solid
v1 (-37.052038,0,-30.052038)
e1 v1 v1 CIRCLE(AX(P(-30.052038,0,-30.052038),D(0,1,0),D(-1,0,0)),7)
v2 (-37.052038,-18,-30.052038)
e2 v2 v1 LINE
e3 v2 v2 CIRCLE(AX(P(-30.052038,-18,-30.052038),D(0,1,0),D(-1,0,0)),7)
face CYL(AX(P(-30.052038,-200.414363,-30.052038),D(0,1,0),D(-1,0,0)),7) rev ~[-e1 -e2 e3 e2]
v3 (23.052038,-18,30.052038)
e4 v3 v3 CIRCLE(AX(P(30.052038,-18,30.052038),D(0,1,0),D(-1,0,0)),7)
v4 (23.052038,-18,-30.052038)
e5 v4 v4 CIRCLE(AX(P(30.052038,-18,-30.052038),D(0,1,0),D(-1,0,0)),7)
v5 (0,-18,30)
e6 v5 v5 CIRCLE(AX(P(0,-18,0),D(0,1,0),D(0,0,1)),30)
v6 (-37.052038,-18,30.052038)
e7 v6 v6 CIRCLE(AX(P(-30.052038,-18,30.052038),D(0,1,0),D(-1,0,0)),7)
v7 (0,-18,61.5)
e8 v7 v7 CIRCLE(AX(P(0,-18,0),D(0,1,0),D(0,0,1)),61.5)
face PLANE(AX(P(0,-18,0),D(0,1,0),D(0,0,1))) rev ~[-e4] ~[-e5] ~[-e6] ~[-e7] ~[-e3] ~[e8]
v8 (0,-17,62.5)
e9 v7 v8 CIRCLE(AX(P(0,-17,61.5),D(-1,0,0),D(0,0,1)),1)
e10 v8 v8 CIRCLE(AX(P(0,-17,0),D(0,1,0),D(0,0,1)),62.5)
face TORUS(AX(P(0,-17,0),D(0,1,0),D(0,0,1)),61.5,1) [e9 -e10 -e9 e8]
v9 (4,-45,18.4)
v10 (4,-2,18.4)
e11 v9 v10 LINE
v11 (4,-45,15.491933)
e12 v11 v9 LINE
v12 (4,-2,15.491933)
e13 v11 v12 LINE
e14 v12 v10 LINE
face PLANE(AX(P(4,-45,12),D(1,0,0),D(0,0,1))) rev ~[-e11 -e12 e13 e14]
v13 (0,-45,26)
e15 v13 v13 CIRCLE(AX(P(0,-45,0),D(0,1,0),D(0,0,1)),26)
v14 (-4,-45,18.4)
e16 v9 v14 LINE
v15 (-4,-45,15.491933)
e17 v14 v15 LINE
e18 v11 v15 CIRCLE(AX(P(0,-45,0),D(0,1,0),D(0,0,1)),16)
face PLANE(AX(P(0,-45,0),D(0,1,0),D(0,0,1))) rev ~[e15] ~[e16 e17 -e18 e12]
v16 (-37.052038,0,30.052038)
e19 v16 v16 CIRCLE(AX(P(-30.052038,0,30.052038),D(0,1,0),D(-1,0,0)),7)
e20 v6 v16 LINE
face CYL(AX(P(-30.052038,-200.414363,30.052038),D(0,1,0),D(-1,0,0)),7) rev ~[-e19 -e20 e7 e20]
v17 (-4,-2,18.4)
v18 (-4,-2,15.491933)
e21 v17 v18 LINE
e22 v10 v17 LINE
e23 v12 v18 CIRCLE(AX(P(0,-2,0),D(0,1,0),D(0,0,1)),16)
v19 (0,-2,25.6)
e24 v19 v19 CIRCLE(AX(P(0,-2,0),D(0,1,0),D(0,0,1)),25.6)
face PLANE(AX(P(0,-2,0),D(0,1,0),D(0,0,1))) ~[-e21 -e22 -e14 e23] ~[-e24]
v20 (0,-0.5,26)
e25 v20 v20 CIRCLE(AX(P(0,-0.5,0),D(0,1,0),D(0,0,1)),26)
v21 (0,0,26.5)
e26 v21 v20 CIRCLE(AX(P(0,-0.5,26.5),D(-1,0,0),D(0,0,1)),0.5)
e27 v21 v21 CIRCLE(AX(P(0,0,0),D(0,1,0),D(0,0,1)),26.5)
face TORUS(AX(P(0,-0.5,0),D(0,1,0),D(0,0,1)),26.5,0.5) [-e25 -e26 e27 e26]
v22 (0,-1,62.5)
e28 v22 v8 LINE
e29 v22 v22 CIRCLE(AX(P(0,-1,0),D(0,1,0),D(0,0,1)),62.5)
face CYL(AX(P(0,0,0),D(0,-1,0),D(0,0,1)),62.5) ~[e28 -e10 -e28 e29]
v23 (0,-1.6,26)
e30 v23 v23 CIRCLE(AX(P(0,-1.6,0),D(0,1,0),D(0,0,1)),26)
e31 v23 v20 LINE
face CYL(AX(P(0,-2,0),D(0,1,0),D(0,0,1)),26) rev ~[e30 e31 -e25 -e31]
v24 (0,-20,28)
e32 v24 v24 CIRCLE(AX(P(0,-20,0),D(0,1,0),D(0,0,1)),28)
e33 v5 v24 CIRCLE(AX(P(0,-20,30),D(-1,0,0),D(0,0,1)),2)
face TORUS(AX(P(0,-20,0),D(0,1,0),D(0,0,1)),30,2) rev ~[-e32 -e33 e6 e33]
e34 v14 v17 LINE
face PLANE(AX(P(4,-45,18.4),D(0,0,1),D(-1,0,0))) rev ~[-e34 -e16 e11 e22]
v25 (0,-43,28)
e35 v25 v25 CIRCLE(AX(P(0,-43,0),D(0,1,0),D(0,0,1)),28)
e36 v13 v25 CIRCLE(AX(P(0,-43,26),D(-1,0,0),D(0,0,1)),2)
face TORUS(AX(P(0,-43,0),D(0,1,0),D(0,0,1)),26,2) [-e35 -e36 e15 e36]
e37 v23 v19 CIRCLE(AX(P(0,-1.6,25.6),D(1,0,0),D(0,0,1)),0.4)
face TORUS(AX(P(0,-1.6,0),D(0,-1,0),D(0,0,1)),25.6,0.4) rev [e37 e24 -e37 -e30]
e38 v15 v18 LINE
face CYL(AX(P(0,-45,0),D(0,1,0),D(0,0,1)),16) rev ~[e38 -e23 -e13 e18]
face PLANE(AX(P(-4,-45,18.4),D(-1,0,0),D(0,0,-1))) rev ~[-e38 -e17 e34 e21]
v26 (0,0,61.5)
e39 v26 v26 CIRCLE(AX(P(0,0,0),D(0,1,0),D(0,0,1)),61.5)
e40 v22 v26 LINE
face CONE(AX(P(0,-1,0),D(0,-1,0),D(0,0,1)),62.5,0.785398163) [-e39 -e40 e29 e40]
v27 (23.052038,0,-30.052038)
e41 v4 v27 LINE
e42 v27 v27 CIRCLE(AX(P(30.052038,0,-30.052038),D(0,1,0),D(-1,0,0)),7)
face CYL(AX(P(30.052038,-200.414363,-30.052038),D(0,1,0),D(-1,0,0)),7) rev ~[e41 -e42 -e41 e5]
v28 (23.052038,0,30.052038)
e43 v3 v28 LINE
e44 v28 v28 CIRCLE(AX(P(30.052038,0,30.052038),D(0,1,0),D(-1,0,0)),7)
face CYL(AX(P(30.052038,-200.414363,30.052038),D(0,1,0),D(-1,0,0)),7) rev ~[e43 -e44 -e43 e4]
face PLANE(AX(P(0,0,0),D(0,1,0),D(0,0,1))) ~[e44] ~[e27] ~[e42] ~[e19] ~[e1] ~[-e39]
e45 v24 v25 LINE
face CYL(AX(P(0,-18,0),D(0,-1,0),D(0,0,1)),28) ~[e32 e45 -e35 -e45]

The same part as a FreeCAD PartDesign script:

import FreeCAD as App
import Part
import Sketcher


def edges_at(feature, points):
    """Names of the edges that pass closest to the given points."""
    edges = feature.Shape.Edges
    near = lambda p: min(range(len(edges)), key=lambda i: edges[i].distToShape(Part.Vertex(*p))[0])
    return sorted({f"Edge{near(p) + 1}" for p in points})

doc = App.newDocument("Part")
body = doc.addObject("PartDesign::Body", "Body")

# Sketch on YZ plane
sketch1 = doc.addObject("Sketcher::SketchObject", "Sketch")
body.addObject(sketch1)
sketch1.AttachmentSupport = (doc.YZ_Plane, [""])
sketch1.MapMode = "FlatFace"
sketch1.addGeometry([
    Part.LineSegment(App.Vector(-2, 26, 0), App.Vector(0, 26, 0)),  # 0
    Part.LineSegment(App.Vector(0, 26, 0), App.Vector(0, 62.5, 0)),  # 1
    Part.LineSegment(App.Vector(0, 62.5, 0), App.Vector(-18, 62.5, 0)),  # 2
    Part.LineSegment(App.Vector(-18, 62.5, 0), App.Vector(-18, 28, 0)),  # 3
    Part.LineSegment(App.Vector(-18, 28, 0), App.Vector(-45, 28, 0)),  # 4
    Part.LineSegment(App.Vector(-45, 28, 0), App.Vector(-45, 16, 0)),  # 5
    Part.LineSegment(App.Vector(-45, 16, 0), App.Vector(-2, 16, 0)),  # 6
    Part.LineSegment(App.Vector(-2, 16, 0), App.Vector(-2, 26, 0)),  # 7
], False)
sketch1.addConstraint([
    Sketcher.Constraint("Coincident", 0, 2, 1, 1),
    Sketcher.Constraint("Coincident", 1, 2, 2, 1),
    Sketcher.Constraint("Coincident", 2, 2, 3, 1),
    Sketcher.Constraint("Coincident", 3, 2, 4, 1),
    Sketcher.Constraint("Coincident", 4, 2, 5, 1),
    Sketcher.Constraint("Coincident", 5, 2, 6, 1),
    Sketcher.Constraint("Coincident", 6, 2, 7, 1),
    Sketcher.Constraint("Coincident", 7, 2, 0, 1),
    Sketcher.Constraint("Horizontal", 0),
    Sketcher.Constraint("Vertical", 1),
    Sketcher.Constraint("Horizontal", 2),
    Sketcher.Constraint("Vertical", 3),
    Sketcher.Constraint("Horizontal", 4),
    Sketcher.Constraint("Vertical", 5),
    Sketcher.Constraint("Horizontal", 6),
    Sketcher.Constraint("Vertical", 7),
    Sketcher.Constraint("PointOnObject", 0, 2, -2),
    Sketcher.Constraint("DistanceX", 0, 1, 0, 2, 2.0),
    Sketcher.Constraint("DistanceX", 2, 2, 2, 1, 18.0),
    Sketcher.Constraint("DistanceX", 4, 2, 4, 1, 27.0),
    Sketcher.Constraint("DistanceY", 5, 2, 5, 1, 12.0),
    Sketcher.Constraint("DistanceY", 7, 1, 7, 2, 10.0),
    Sketcher.Constraint("DistanceY", 1, 1, 1, 2, 36.5),
    Sketcher.Constraint("DistanceY", -1, 1, 0, 2, 26.0),
])
revolution = doc.addObject("PartDesign::Revolution", "Revolution")
body.addObject(revolution)
revolution.Profile = sketch1
revolution.ReferenceAxis = (sketch1, ["H_Axis"])
revolution.Angle = 360

# Sketch on XZ plane
sketch2 = doc.addObject("Sketcher::SketchObject", "Sketch001")
body.addObject(sketch2)
sketch2.AttachmentSupport = (doc.XZ_Plane, [""])
sketch2.MapMode = "FlatFace"
sketch2.AttachmentOffset = App.Placement(App.Vector(0, 0, 45), App.Rotation())
sketch2.addGeometry([
    Part.LineSegment(App.Vector(-4, 12, 0), App.Vector(4, 12, 0)),
    Part.LineSegment(App.Vector(4, 12, 0), App.Vector(4, 18, 0)),
    Part.LineSegment(App.Vector(4, 18, 0), App.Vector(-4, 18, 0)),
    Part.LineSegment(App.Vector(-4, 18, 0), App.Vector(-4, 12, 0)),
], False)
sketch2.addConstraint([
    Sketcher.Constraint("Coincident", 0, 2, 1, 1),
    Sketcher.Constraint("Coincident", 1, 2, 2, 1),
    Sketcher.Constraint("Coincident", 2, 2, 3, 1),
    Sketcher.Constraint("Coincident", 3, 2, 0, 1),
    Sketcher.Constraint("Horizontal", 0),
    Sketcher.Constraint("Vertical", 1),
    Sketcher.Constraint("Horizontal", 2),
    Sketcher.Constraint("Vertical", 3),
    Sketcher.Constraint("DistanceX", 0, 1, 0, 2, 8.0),
    Sketcher.Constraint("DistanceY", 1, 1, 1, 2, 6.4),
    Sketcher.Constraint("DistanceX", -1, 1, 0, 2, 4.0),
    Sketcher.Constraint("DistanceY", -1, 1, 0, 2, 12.0),
])
pocket1 = doc.addObject("PartDesign::Pocket", "Pocket")
body.addObject(pocket1)
pocket1.Profile = sketch2
pocket1.Type = "ThroughAll"

# Sketch on XZ plane
sketch3 = doc.addObject("Sketcher::SketchObject", "Sketch002")
body.addObject(sketch3)
sketch3.AttachmentSupport = (doc.XZ_Plane, [""])
sketch3.MapMode = "FlatFace"
sketch3.AttachmentOffset = App.Placement(App.Vector(0, 0, 18), App.Rotation())
sketch3.addGeometry([
    Part.Circle(App.Vector(30, 30, 0), App.Vector(0, 0, 1), 7),
    Part.Circle(App.Vector(30, -30, 0), App.Vector(0, 0, 1), 7),
    Part.Circle(App.Vector(-30, -30, 0), App.Vector(0, 0, 1), 7),
    Part.Circle(App.Vector(-30, 30, 0), App.Vector(0, 0, 1), 7),
], False)
sketch3.addConstraint([
    Sketcher.Constraint("Equal", 0, 1),
    Sketcher.Constraint("Equal", 1, 2),
    Sketcher.Constraint("Equal", 2, 3),
    Sketcher.Constraint("Symmetric", 0, 3, 2, 3, -1, 1),
    Sketcher.Constraint("Symmetric", 1, 3, 3, 3, -1, 1),
    Sketcher.Constraint("Symmetric", 1, 3, 2, 3, -2),
    Sketcher.Constraint("Diameter", 0, 14.0),
    Sketcher.Constraint("DistanceX", -1, 1, 0, 3, 30.052038),
    Sketcher.Constraint("DistanceY", -1, 1, 0, 3, 30.052038),
])
doc.recompute()
hole = doc.addObject("PartDesign::Hole", "Hole")
body.addObject(hole)
hole.Profile = sketch3
hole.ThreadType = "None"
hole.Diameter = 14
hole.DepthType = "ThroughAll"
doc.recompute()

fillet = doc.addObject("PartDesign::Fillet", "Fillet")
body.addObject(fillet)
fillet.Base = (hole, edges_at(hole, [(0, -18, -28), (0, -45, -28)]))
fillet.Radius = 2
doc.recompute()

fillet2 = doc.addObject("PartDesign::Fillet", "Fillet001")
body.addObject(fillet2)
fillet2.Base = (fillet, edges_at(fillet, [(0, -18, -62.5)]))
fillet2.Radius = 1
doc.recompute()

chamfer = doc.addObject("PartDesign::Chamfer", "Chamfer")
body.addObject(chamfer)
chamfer.Base = (fillet2, edges_at(fillet2, [(0, 0, -62.5)]))
chamfer.Size = 1
doc.recompute()

fillet3 = doc.addObject("PartDesign::Fillet", "Fillet002")
body.addObject(fillet3)
fillet3.Base = (chamfer, edges_at(chamfer, [(0, 0, -26)]))
fillet3.Radius = 0.5
doc.recompute()

fillet4 = doc.addObject("PartDesign::Fillet", "Fillet003")
body.addObject(fillet4)
fillet4.Base = (fillet3, edges_at(fillet3, [(0, -2, -26)]))
fillet4.Radius = 0.4

doc.recompute()
